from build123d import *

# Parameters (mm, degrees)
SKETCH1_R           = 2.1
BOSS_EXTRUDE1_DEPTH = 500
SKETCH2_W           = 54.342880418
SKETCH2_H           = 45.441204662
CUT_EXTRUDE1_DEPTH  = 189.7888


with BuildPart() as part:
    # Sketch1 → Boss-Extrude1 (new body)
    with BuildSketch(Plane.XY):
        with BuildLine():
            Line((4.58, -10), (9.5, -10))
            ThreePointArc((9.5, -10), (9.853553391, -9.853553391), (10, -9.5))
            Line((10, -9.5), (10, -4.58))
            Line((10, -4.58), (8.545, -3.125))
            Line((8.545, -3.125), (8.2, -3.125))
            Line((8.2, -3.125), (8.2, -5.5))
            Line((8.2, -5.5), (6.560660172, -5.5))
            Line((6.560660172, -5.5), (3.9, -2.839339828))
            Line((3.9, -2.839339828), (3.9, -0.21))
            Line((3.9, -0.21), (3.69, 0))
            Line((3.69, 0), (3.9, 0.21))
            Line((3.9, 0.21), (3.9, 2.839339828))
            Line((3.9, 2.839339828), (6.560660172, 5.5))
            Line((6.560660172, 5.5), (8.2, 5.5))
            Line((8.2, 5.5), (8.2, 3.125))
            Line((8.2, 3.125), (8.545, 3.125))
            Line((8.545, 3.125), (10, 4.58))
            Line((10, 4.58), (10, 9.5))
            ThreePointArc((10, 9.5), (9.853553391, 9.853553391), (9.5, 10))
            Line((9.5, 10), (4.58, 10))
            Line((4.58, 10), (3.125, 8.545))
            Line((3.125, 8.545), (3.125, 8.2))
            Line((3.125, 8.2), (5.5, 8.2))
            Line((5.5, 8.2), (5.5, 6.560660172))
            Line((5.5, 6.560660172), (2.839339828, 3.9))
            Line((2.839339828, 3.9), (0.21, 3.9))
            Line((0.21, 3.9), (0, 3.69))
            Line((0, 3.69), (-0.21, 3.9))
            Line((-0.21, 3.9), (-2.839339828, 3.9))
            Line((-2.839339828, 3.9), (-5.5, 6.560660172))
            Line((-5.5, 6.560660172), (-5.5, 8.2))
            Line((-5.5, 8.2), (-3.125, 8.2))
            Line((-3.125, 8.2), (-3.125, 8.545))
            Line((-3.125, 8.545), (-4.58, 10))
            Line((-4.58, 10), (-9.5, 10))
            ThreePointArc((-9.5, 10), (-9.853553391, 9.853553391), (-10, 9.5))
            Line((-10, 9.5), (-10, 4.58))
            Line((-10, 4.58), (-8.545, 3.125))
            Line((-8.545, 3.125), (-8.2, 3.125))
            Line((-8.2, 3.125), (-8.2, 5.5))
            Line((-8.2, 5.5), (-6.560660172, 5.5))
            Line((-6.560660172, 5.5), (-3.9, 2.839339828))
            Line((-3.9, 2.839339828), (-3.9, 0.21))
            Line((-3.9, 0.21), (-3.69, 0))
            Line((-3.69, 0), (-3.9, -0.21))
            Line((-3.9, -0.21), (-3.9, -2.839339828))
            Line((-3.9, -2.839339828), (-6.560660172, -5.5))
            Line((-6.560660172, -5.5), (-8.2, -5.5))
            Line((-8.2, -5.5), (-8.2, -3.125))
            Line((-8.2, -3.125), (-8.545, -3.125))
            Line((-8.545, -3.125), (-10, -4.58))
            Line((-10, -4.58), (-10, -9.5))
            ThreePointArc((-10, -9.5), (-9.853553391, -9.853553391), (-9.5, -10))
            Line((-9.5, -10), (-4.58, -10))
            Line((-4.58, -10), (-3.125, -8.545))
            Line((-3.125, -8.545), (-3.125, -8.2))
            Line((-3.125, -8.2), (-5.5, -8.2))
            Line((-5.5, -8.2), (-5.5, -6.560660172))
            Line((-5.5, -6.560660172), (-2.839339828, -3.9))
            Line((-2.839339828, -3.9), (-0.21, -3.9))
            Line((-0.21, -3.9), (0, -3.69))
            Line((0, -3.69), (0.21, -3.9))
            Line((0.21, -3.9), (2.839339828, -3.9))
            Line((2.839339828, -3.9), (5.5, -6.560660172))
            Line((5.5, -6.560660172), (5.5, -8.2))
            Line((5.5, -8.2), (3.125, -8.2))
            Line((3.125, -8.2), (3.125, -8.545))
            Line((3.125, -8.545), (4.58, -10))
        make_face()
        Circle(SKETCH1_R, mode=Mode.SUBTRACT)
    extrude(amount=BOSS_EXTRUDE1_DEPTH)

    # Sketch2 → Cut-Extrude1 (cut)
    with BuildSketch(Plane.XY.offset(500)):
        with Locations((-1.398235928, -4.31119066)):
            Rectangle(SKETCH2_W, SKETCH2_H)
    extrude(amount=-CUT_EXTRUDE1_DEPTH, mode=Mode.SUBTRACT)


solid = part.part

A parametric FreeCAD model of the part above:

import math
import FreeCAD as App
import Part
import Sketcher

V = App.Vector


def add_polygon(sketch, points):
    """Adds a closed chain of lines whose ends are joined by coincident constraints."""
    first, n = sketch.GeometryCount, len(points)
    for a, b in zip(points, points[1:] + points[:1]):
        sketch.addGeometry(Part.LineSegment(App.Vector(*a, 0), App.Vector(*b, 0)), False)
    for i in range(n):
        sketch.addConstraint(Sketcher.Constraint("Coincident", first + i, 2, first + (i + 1) % n, 1))

doc = App.newDocument("Part")
body = doc.addObject("PartDesign::Body", "Body")

# Sketch on XY plane
sketch1 = body.newObject("Sketcher::SketchObject", "Sketch")
sketch1.AttachmentSupport = (doc.getObject("XY_Plane"), [""])
sketch1.MapMode = "FlatFace"
sketch1.addGeometry(Part.LineSegment(V(4.58, -10, 0), V(9.5, -10, 0)), False)
sketch1.addGeometry(Part.ArcOfCircle(Part.Circle(V(9.5, -9.5, 0), V(0, 0, 1), 0.5), math.radians(-90), math.radians(0)), False)
sketch1.addGeometry(Part.LineSegment(V(10, -9.5, 0), V(10, -4.58, 0)), False)
sketch1.addGeometry(Part.LineSegment(V(10, -4.58, 0), V(8.54, -3.12, 0)), False)
sketch1.addGeometry(Part.LineSegment(V(8.54, -3.12, 0), V(8.2, -3.12, 0)), False)
sketch1.addGeometry(Part.LineSegment(V(8.2, -3.12, 0), V(8.2, -5.5, 0)), False)
sketch1.addGeometry(Part.LineSegment(V(8.2, -5.5, 0), V(6.56, -5.5, 0)), False)
sketch1.addGeometry(Part.LineSegment(V(6.56, -5.5, 0), V(3.9, -2.84, 0)), False)
sketch1.addGeometry(Part.LineSegment(V(3.9, -2.84, 0), V(3.9, -0.21, 0)), False)
sketch1.addGeometry(Part.LineSegment(V(3.9, -0.21, 0), V(3.69, 0, 0)), False)
sketch1.addGeometry(Part.LineSegment(V(3.69, 0, 0), V(3.9, 0.21, 0)), False)
sketch1.addGeometry(Part.LineSegment(V(3.9, 0.21, 0), V(3.9, 2.84, 0)), False)
sketch1.addGeometry(Part.LineSegment(V(3.9, 2.84, 0), V(6.56, 5.5, 0)), False)
sketch1.addGeometry(Part.LineSegment(V(6.56, 5.5, 0), V(8.2, 5.5, 0)), False)
sketch1.addGeometry(Part.LineSegment(V(8.2, 5.5, 0), V(8.2, 3.12, 0)), False)
sketch1.addGeometry(Part.LineSegment(V(8.2, 3.12, 0), V(8.54, 3.12, 0)), False)
sketch1.addGeometry(Part.LineSegment(V(8.54, 3.12, 0), V(10, 4.58, 0)), False)
sketch1.addGeometry(Part.LineSegment(V(10, 4.58, 0), V(10, 9.5, 0)), False)
sketch1.addGeometry(Part.ArcOfCircle(Part.Circle(V(9.5, 9.5, 0), V(0, 0, 1), 0.5), math.radians(0), math.radians(90)), False)
sketch1.addGeometry(Part.LineSegment(V(9.5, 10, 0), V(4.58, 10, 0)), False)
sketch1.addGeometry(Part.LineSegment(V(4.58, 10, 0), V(3.12, 8.54, 0)), False)
sketch1.addGeometry(Part.LineSegment(V(3.12, 8.54, 0), V(3.12, 8.2, 0)), False)
sketch1.addGeometry(Part.LineSegment(V(3.12, 8.2, 0), V(5.5, 8.2, 0)), False)
sketch1.addGeometry(Part.LineSegment(V(5.5, 8.2, 0), V(5.5, 6.56, 0)), False)
sketch1.addGeometry(Part.LineSegment(V(5.5, 6.56, 0), V(2.84, 3.9, 0)), False)
sketch1.addGeometry(Part.LineSegment(V(2.84, 3.9, 0), V(0.21, 3.9, 0)), False)
sketch1.addGeometry(Part.LineSegment(V(0.21, 3.9, 0), V(0, 3.69, 0)), False)
sketch1.addGeometry(Part.LineSegment(V(0, 3.69, 0), V(-0.21, 3.9, 0)), False)
sketch1.addGeometry(Part.LineSegment(V(-0.21, 3.9, 0), V(-2.84, 3.9, 0)), False)
sketch1.addGeometry(Part.LineSegment(V(-2.84, 3.9, 0), V(-5.5, 6.56, 0)), False)
sketch1.addGeometry(Part.LineSegment(V(-5.5, 6.56, 0), V(-5.5, 8.2, 0)), False)
sketch1.addGeometry(Part.LineSegment(V(-5.5, 8.2, 0), V(-3.12, 8.2, 0)), False)
sketch1.addGeometry(Part.LineSegment(V(-3.12, 8.2, 0), V(-3.12, 8.54, 0)), False)
sketch1.addGeometry(Part.LineSegment(V(-3.12, 8.54, 0), V(-4.58, 10, 0)), False)
sketch1.addGeometry(Part.LineSegment(V(-4.58, 10, 0), V(-9.5, 10, 0)), False)
sketch1.addGeometry(Part.ArcOfCircle(Part.Circle(V(-9.5, 9.5, 0), V(0, 0, 1), 0.5), math.radians(90), math.radians(180)), False)
sketch1.addGeometry(Part.LineSegment(V(-10, 9.5, 0), V(-10, 4.58, 0)), False)
sketch1.addGeometry(Part.LineSegment(V(-10, 4.58, 0), V(-8.54, 3.12, 0)), False)
sketch1.addGeometry(Part.LineSegment(V(-8.54, 3.12, 0), V(-8.2, 3.12, 0)), False)
sketch1.addGeometry(Part.LineSegment(V(-8.2, 3.12, 0), V(-8.2, 5.5, 0)), False)
sketch1.addGeometry(Part.LineSegment(V(-8.2, 5.5, 0), V(-6.56, 5.5, 0)), False)
sketch1.addGeometry(Part.LineSegment(V(-6.56, 5.5, 0), V(-3.9, 2.84, 0)), False)
sketch1.addGeometry(Part.LineSegment(V(-3.9, 2.84, 0), V(-3.9, 0.21, 0)), False)
sketch1.addGeometry(Part.LineSegment(V(-3.9, 0.21, 0), V(-3.69, 0, 0)), False)
sketch1.addGeometry(Part.LineSegment(V(-3.69, 0, 0), V(-3.9, -0.21, 0)), False)
sketch1.addGeometry(Part.LineSegment(V(-3.9, -0.21, 0), V(-3.9, -2.84, 0)), False)
sketch1.addGeometry(Part.LineSegment(V(-3.9, -2.84, 0), V(-6.56, -5.5, 0)), False)
sketch1.addGeometry(Part.LineSegment(V(-6.56, -5.5, 0), V(-8.2, -5.5, 0)), False)
sketch1.addGeometry(Part.LineSegment(V(-8.2, -5.5, 0), V(-8.2, -3.12, 0)), False)
sketch1.addGeometry(Part.LineSegment(V(-8.2, -3.12, 0), V(-8.54, -3.12, 0)), False)
sketch1.addGeometry(Part.LineSegment(V(-8.54, -3.12, 0), V(-10, -4.58, 0)), False)
sketch1.addGeometry(Part.LineSegment(V(-10, -4.58, 0), V(-10, -9.5, 0)), False)
sketch1.addGeometry(Part.ArcOfCircle(Part.Circle(V(-9.5, -9.5, 0), V(0, 0, 1), 0.5), math.radians(180), math.radians(270)), False)
sketch1.addGeometry(Part.LineSegment(V(-9.5, -10, 0), V(-4.58, -10, 0)), False)
sketch1.addGeometry(Part.LineSegment(V(-4.58, -10, 0), V(-3.12, -8.54, 0)), False)
sketch1.addGeometry(Part.LineSegment(V(-3.12, -8.54, 0), V(-3.12, -8.2, 0)), False)
sketch1.addGeometry(Part.LineSegment(V(-3.12, -8.2, 0), V(-5.5, -8.2, 0)), False)
sketch1.addGeometry(Part.LineSegment(V(-5.5, -8.2, 0), V(-5.5, -6.56, 0)), False)
sketch1.addGeometry(Part.LineSegment(V(-5.5, -6.56, 0), V(-2.84, -3.9, 0)), False)
sketch1.addGeometry(Part.LineSegment(V(-2.84, -3.9, 0), V(-0.21, -3.9, 0)), False)
sketch1.addGeometry(Part.LineSegment(V(-0.21, -3.9, 0), V(0, -3.69, 0)), False)
sketch1.addGeometry(Part.LineSegment(V(0, -3.69, 0), V(0.21, -3.9, 0)), False)
sketch1.addGeometry(Part.LineSegment(V(0.21, -3.9, 0), V(2.84, -3.9, 0)), False)
sketch1.addGeometry(Part.LineSegment(V(2.84, -3.9, 0), V(5.5, -6.56, 0)), False)
sketch1.addGeometry(Part.LineSegment(V(5.5, -6.56, 0), V(5.5, -8.2, 0)), False)
sketch1.addGeometry(Part.LineSegment(V(5.5, -8.2, 0), V(3.12, -8.2, 0)), False)
sketch1.addGeometry(Part.LineSegment(V(3.12, -8.2, 0), V(3.12, -8.54, 0)), False)
sketch1.addGeometry(Part.LineSegment(V(3.12, -8.54, 0), V(4.58, -10, 0)), False)
sketch1.addGeometry(Part.Circle(V(0, 0, 0), V(0, 0, 1), 2.1), False)
sketch1.addConstraint(Sketcher.Constraint("Tangent", 0, 2, 1, 1))
sketch1.addConstraint(Sketcher.Constraint("Tangent", 1, 2, 2, 1))
sketch1.addConstraint(Sketcher.Constraint("Coincident", 2, 2, 3, 1))
sketch1.addConstraint(Sketcher.Constraint("Coincident", 3, 2, 4, 1))
sketch1.addConstraint(Sketcher.Constraint("Coincident", 4, 2, 5, 1))
sketch1.addConstraint(Sketcher.Constraint("Coincident", 5, 2, 6, 1))
sketch1.addConstraint(Sketcher.Constraint("Coincident", 6, 2, 7, 1))
sketch1.addConstraint(Sketcher.Constraint("Coincident", 7, 2, 8, 1))
sketch1.addConstraint(Sketcher.Constraint("Coincident", 8, 2, 9, 1))
sketch1.addConstraint(Sketcher.Constraint("Coincident", 9, 2, 10, 1))
sketch1.addConstraint(Sketcher.Constraint("Coincident", 10, 2, 11, 1))
sketch1.addConstraint(Sketcher.Constraint("Coincident", 11, 2, 12, 1))
sketch1.addConstraint(Sketcher.Constraint("Coincident", 12, 2, 13, 1))
sketch1.addConstraint(Sketcher.Constraint("Coincident", 13, 2, 14, 1))
sketch1.addConstraint(Sketcher.Constraint("Coincident", 14, 2, 15, 1))
sketch1.addConstraint(Sketcher.Constraint("Coincident", 15, 2, 16, 1))
sketch1.addConstraint(Sketcher.Constraint("Coincident", 16, 2, 17, 1))
sketch1.addConstraint(Sketcher.Constraint("Tangent", 17, 2, 18, 1))
sketch1.addConstraint(Sketcher.Constraint("Tangent", 18, 2, 19, 1))
sketch1.addConstraint(Sketcher.Constraint("Coincident", 19, 2, 20, 1))
sketch1.addConstraint(Sketcher.Constraint("Coincident", 20, 2, 21, 1))
sketch1.addConstraint(Sketcher.Constraint("Coincident", 21, 2, 22, 1))
sketch1.addConstraint(Sketcher.Constraint("Coincident", 22, 2, 23, 1))
sketch1.addConstraint(Sketcher.Constraint("Coincident", 23, 2, 24, 1))
sketch1.addConstraint(Sketcher.Constraint("Coincident", 24, 2, 25, 1))
sketch1.addConstraint(Sketcher.Constraint("Coincident", 25, 2, 26, 1))
sketch1.addConstraint(Sketcher.Constraint("Coincident", 26, 2, 27, 1))
sketch1.addConstraint(Sketcher.Constraint("Coincident", 27, 2, 28, 1))
sketch1.addConstraint(Sketcher.Constraint("Coincident", 28, 2, 29, 1))
sketch1.addConstraint(Sketcher.Constraint("Coincident", 29, 2, 30, 1))
sketch1.addConstraint(Sketcher.Constraint("Coincident", 30, 2, 31, 1))
sketch1.addConstraint(Sketcher.Constraint("Coincident", 31, 2, 32, 1))
sketch1.addConstraint(Sketcher.Constraint("Coincident", 32, 2, 33, 1))
sketch1.addConstraint(Sketcher.Constraint("Coincident", 33, 2, 34, 1))
sketch1.addConstraint(Sketcher.Constraint("Tangent", 34, 2, 35, 1))
sketch1.addConstraint(Sketcher.Constraint("Tangent", 35, 2, 36, 1))
sketch1.addConstraint(Sketcher.Constraint("Coincident", 36, 2, 37, 1))
sketch1.addConstraint(Sketcher.Constraint("Coincident", 37, 2, 38, 1))
sketch1.addConstraint(Sketcher.Constraint("Coincident", 38, 2, 39, 1))
sketch1.addConstraint(Sketcher.Constraint("Coincident", 39, 2, 40, 1))
sketch1.addConstraint(Sketcher.Constraint("Coincident", 40, 2, 41, 1))
sketch1.addConstraint(Sketcher.Constraint("Coincident", 41, 2, 42, 1))
sketch1.addConstraint(Sketcher.Constraint("Coincident", 42, 2, 43, 1))
sketch1.addConstraint(Sketcher.Constraint("Coincident", 43, 2, 44, 1))
sketch1.addConstraint(Sketcher.Constraint("Coincident", 44, 2, 45, 1))
sketch1.addConstraint(Sketcher.Constraint("Coincident", 45, 2, 46, 1))
sketch1.addConstraint(Sketcher.Constraint("Coincident", 46, 2, 47, 1))
sketch1.addConstraint(Sketcher.Constraint("Coincident", 47, 2, 48, 1))
sketch1.addConstraint(Sketcher.Constraint("Coincident", 48, 2, 49, 1))
sketch1.addConstraint(Sketcher.Constraint("Coincident", 49, 2, 50, 1))
sketch1.addConstraint(Sketcher.Constraint("Coincident", 50, 2, 51, 1))
sketch1.addConstraint(Sketcher.Constraint("Tangent", 51, 2, 52, 1))
sketch1.addConstraint(Sketcher.Constraint("Tangent", 52, 2, 53, 1))
sketch1.addConstraint(Sketcher.Constraint("Coincident", 53, 2, 54, 1))
sketch1.addConstraint(Sketcher.Constraint("Coincident", 54, 2, 55, 1))
sketch1.addConstraint(Sketcher.Constraint("Coincident", 55, 2, 56, 1))
sketch1.addConstraint(Sketcher.Constraint("Coincident", 56, 2, 57, 1))
sketch1.addConstraint(Sketcher.Constraint("Coincident", 57, 2, 58, 1))
sketch1.addConstraint(Sketcher.Constraint("Coincident", 58, 2, 59, 1))
sketch1.addConstraint(Sketcher.Constraint("Coincident", 59, 2, 60, 1))
sketch1.addConstraint(Sketcher.Constraint("Coincident", 60, 2, 61, 1))
sketch1.addConstraint(Sketcher.Constraint("Coincident", 61, 2, 62, 1))
sketch1.addConstraint(Sketcher.Constraint("Coincident", 62, 2, 63, 1))
sketch1.addConstraint(Sketcher.Constraint("Coincident", 63, 2, 64, 1))
sketch1.addConstraint(Sketcher.Constraint("Coincident", 64, 2, 65, 1))
sketch1.addConstraint(Sketcher.Constraint("Coincident", 65, 2, 66, 1))
sketch1.addConstraint(Sketcher.Constraint("Coincident", 66, 2, 67, 1))
sketch1.addConstraint(Sketcher.Constraint("Coincident", 67, 2, 0, 1))
sketch1.addConstraint(Sketcher.Constraint("Horizontal", 0))
sketch1.addConstraint(Sketcher.Constraint("Vertical", 2))
sketch1.addConstraint(Sketcher.Constraint("Horizontal", 4))
sketch1.addConstraint(Sketcher.Constraint("Vertical", 5))
sketch1.addConstraint(Sketcher.Constraint("Horizontal", 6))
sketch1.addConstraint(Sketcher.Constraint("Vertical", 8))
sketch1.addConstraint(Sketcher.Constraint("Vertical", 11))
sketch1.addConstraint(Sketcher.Constraint("Horizontal", 13))
sketch1.addConstraint(Sketcher.Constraint("Vertical", 14))
sketch1.addConstraint(Sketcher.Constraint("Horizontal", 15))
sketch1.addConstraint(Sketcher.Constraint("Vertical", 17))
sketch1.addConstraint(Sketcher.Constraint("Horizontal", 19))
sketch1.addConstraint(Sketcher.Constraint("Vertical", 21))
sketch1.addConstraint(Sketcher.Constraint("Horizontal", 22))
sketch1.addConstraint(Sketcher.Constraint("Vertical", 23))
sketch1.addConstraint(Sketcher.Constraint("Horizontal", 25))
sketch1.addConstraint(Sketcher.Constraint("Horizontal", 28))
sketch1.addConstraint(Sketcher.Constraint("Vertical", 30))
sketch1.addConstraint(Sketcher.Constraint("Horizontal", 31))
sketch1.addConstraint(Sketcher.Constraint("Vertical", 32))
sketch1.addConstraint(Sketcher.Constraint("Horizontal", 34))
sketch1.addConstraint(Sketcher.Constraint("Vertical", 36))
sketch1.addConstraint(Sketcher.Constraint("Horizontal", 38))
sketch1.addConstraint(Sketcher.Constraint("Vertical", 39))
sketch1.addConstraint(Sketcher.Constraint("Horizontal", 40))
sketch1.addConstraint(Sketcher.Constraint("Vertical", 42))
sketch1.addConstraint(Sketcher.Constraint("Vertical", 45))
sketch1.addConstraint(Sketcher.Constraint("Horizontal", 47))
sketch1.addConstraint(Sketcher.Constraint("Vertical", 48))
sketch1.addConstraint(Sketcher.Constraint("Horizontal", 49))
sketch1.addConstraint(Sketcher.Constraint("Vertical", 51))
sketch1.addConstraint(Sketcher.Constraint("Horizontal", 53))
sketch1.addConstraint(Sketcher.Constraint("Vertical", 55))
sketch1.addConstraint(Sketcher.Constraint("Horizontal", 56))
sketch1.addConstraint(Sketcher.Constraint("Vertical", 57))
sketch1.addConstraint(Sketcher.Constraint("Horizontal", 59))
sketch1.addConstraint(Sketcher.Constraint("Horizontal", 62))
sketch1.addConstraint(Sketcher.Constraint("Vertical", 64))
sketch1.addConstraint(Sketcher.Constraint("Horizontal", 65))
sketch1.addConstraint(Sketcher.Constraint("Vertical", 66))
sketch1.addConstraint(Sketcher.Constraint("Coincident", 68, 3, -1, 1))
sketch1.addConstraint(Sketcher.Constraint("Equal", 1, 18))
sketch1.addConstraint(Sketcher.Constraint("Equal", 18, 35))
sketch1.addConstraint(Sketcher.Constraint("Equal", 35, 52))
sketch1.addConstraint(Sketcher.Constraint("Symmetric", 1, 3, 35, 3, -1, 1))
sketch1.addConstraint(Sketcher.Constraint("Symmetric", 18, 3, 52, 3, -1, 1))
sketch1.addConstraint(Sketcher.Constraint("Symmetric", 3, 2, 37, 2, -1, 1))
sketch1.addConstraint(Sketcher.Constraint("Symmetric", 5, 2, 39, 2, -1, 1))
sketch1.addConstraint(Sketcher.Constraint("Symmetric", 7, 2, 41, 2, -1, 1))
sketch1.addConstraint(Sketcher.Constraint("Symmetric", 9, 2, 43, 2, -1, 1))
sketch1.addConstraint(Sketcher.Constraint("Symmetric", 10, 2, 44, 2, -1, 1))
sketch1.addConstraint(Sketcher.Constraint("Symmetric", 12, 2, 46, 2, -1, 1))
sketch1.addConstraint(Sketcher.Constraint("Symmetric", 14, 2, 48, 2, -1, 1))
sketch1.addConstraint(Sketcher.Constraint("Symmetric", 20, 2, 54, 2, -1, 1))
sketch1.addConstraint(Sketcher.Constraint("Symmetric", 22, 2, 56, 2, -1, 1))
sketch1.addConstraint(Sketcher.Constraint("Symmetric", 24, 2, 58, 2, -1, 1))
sketch1.addConstraint(Sketcher.Constraint("Symmetric", 26, 2, 60, 2, -1, 1))
sketch1.addConstraint(Sketcher.Constraint("Symmetric", 27, 2, 61, 2, -1, 1))
sketch1.addConstraint(Sketcher.Constraint("Symmetric", 29, 2, 63, 2, -1, 1))
sketch1.addConstraint(Sketcher.Constraint("Symmetric", 31, 2, 65, 2, -1, 1))
sketch1.addConstraint(Sketcher.Constraint("Symmetric", 18, 3, 35, 3, -2))
sketch1.addConstraint(Sketcher.Constraint("Symmetric", 25, 2, 27, 2, -2))
sketch1.addConstraint(Sketcher.Constraint("Symmetric", 23, 2, 29, 2, -2))
sketch1.addConstraint(Sketcher.Constraint("Symmetric", 21, 2, 31, 2, -2))
sketch1.addConstraint(Sketcher.Constraint("Symmetric", 15, 2, 37, 2, -2))
sketch1.addConstraint(Sketcher.Constraint("Symmetric", 13, 2, 39, 2, -2))
sketch1.addConstraint(Sketcher.Constraint("Symmetric", 11, 2, 41, 2, -2))
sketch1.addConstraint(Sketcher.Constraint("PointOnObject", 9, 2, -1))
sketch1.addConstraint(Sketcher.Constraint("PointOnObject", 26, 2, -2))
sketch1.addConstraint(Sketcher.Constraint("Parallel", 3, 7))
sketch1.addConstraint(Sketcher.Constraint("Parallel", 7, 9))
sketch1.addConstraint(Sketcher.Constraint("Perpendicular", 9, 10))
sketch1.addConstraint(Sketcher.Constraint("Parallel", 10, 12))
sketch1.addConstraint(Sketcher.Constraint("Parallel", 12, 16))
sketch1.addConstraint(Sketcher.Constraint("Parallel", 16, 20))
sketch1.addConstraint(Sketcher.Constraint("Parallel", 20, 24))
sketch1.addConstraint(Sketcher.Constraint("Parallel", 24, 26))
sketch1.addConstraint(Sketcher.Constraint("Perpendicular", 26, 27))
sketch1.addConstraint(Sketcher.Constraint("Parallel", 27, 29))
sketch1.addConstraint(Sketcher.Constraint("Parallel", 29, 33))
sketch1.addConstraint(Sketcher.Constraint("Parallel", 33, 37))
sketch1.addConstraint(Sketcher.Constraint("Parallel", 37, 41))
sketch1.addConstraint(Sketcher.Constraint("Parallel", 41, 43))
sketch1.addConstraint(Sketcher.Constraint("Parallel", 44, 46))
sketch1.addConstraint(Sketcher.Constraint("Parallel", 46, 50))
sketch1.addConstraint(Sketcher.Constraint("Parallel", 50, 54))
sketch1.addConstraint(Sketcher.Constraint("Parallel", 54, 58))
sketch1.addConstraint(Sketcher.Constraint("Parallel", 58, 60))
sketch1.addConstraint(Sketcher.Constraint("Parallel", 61, 63))
sketch1.addConstraint(Sketcher.Constraint("Parallel", 63, 67))
sketch1.addConstraint(Sketcher.Constraint("Horizontal", 20, 2, 32, 2))
sketch1.addConstraint(Sketcher.Constraint("Horizontal", 2, 2, 50, 2))
sketch1.addConstraint(Sketcher.Constraint("Horizontal", 54, 2, 66, 2))
sketch1.addConstraint(Sketcher.Constraint("Equal", 53, 2))
sketch1.addConstraint(Sketcher.Constraint("Equal", 65, 5))
sketch1.addConstraint(Sketcher.Constraint("Equal", 62, 8))
sketch1.addConstraint(Sketcher.Constraint("Equal", 49, 21))
sketch1.addConstraint(Sketcher.Constraint("Equal", 47, 23))
sketch1.addConstraint(Sketcher.Constraint("Equal", 16, 20))
sketch1.addConstraint(Sketcher.Constraint("Equal", 12, 24))
sketch1.addConstraint(Sketcher.Constraint("Equal", 10, 26))
sketch1.addConstraint(Sketcher.Constraint("Diameter", 68, 4.2))
sketch1.addConstraint(Sketcher.Constraint("Radius", 1, 0.5))
sketch1.addConstraint(Sketcher.Constraint("DistanceY", 0, 2, -1, 1, 10.0))
sketch1.addConstraint(Sketcher.Constraint("DistanceX", 0, 1, 0, 2, 4.92))
sketch1.addConstraint(Sketcher.Constraint("DistanceX", -1, 1, 4, 2, 8.2))
sketch1.addConstraint(Sketcher.Constraint("DistanceY", 5, 2, -1, 1, 5.5))
sketch1.addConstraint(Sketcher.Constraint("DistanceX", -1, 1, 7, 2, 3.9))
sketch1.addConstraint(Sketcher.Constraint("DistanceX", 4, 2, 4, 1, 0.345))
sketch1.addConstraint(Sketcher.Constraint("DistanceY", 8, 2, -1, 1, 0.21))
sketch1.addConstraint(Sketcher.Constraint("DistanceX", 6, 2, 6, 1, 1.63934))
pad1 = body.newObject("PartDesign::Pad", "Pad")
pad1.Profile = sketch1
pad1.Length = 500

# Sketch on XY plane
sketch2 = body.newObject("Sketcher::SketchObject", "Sketch001")
sketch2.AttachmentSupport = (doc.getObject("XY_Plane"), [""])
sketch2.MapMode = "FlatFace"
sketch2.AttachmentOffset = App.Placement(V(0, 0, 500), App.Rotation())
add_polygon(sketch2, [(-29, 18), (-29, -27), (26, -27), (26, 18)])  # lines 0-3
sketch2.addConstraint(Sketcher.Constraint("Vertical", 0))
sketch2.addConstraint(Sketcher.Constraint("Horizontal", 1))
sketch2.addConstraint(Sketcher.Constraint("Vertical", 2))
sketch2.addConstraint(Sketcher.Constraint("Horizontal", 3))
sketch2.addConstraint(Sketcher.Constraint("DistanceX", 1, 1, 1, 2, 54.34288))
sketch2.addConstraint(Sketcher.Constraint("DistanceY", 0, 2, 0, 1, 45.441205))
sketch2.addConstraint(Sketcher.Constraint("DistanceY", -1, 1, 2, 2, 18.409412))
sketch2.addConstraint(Sketcher.Constraint("DistanceX", 0, 2, -1, 1, 28.569676))
pocket1 = body.newObject("PartDesign::Pocket", "Pocket")
pocket1.Profile = sketch2
pocket1.Length = 189.7888

doc.recompute()
